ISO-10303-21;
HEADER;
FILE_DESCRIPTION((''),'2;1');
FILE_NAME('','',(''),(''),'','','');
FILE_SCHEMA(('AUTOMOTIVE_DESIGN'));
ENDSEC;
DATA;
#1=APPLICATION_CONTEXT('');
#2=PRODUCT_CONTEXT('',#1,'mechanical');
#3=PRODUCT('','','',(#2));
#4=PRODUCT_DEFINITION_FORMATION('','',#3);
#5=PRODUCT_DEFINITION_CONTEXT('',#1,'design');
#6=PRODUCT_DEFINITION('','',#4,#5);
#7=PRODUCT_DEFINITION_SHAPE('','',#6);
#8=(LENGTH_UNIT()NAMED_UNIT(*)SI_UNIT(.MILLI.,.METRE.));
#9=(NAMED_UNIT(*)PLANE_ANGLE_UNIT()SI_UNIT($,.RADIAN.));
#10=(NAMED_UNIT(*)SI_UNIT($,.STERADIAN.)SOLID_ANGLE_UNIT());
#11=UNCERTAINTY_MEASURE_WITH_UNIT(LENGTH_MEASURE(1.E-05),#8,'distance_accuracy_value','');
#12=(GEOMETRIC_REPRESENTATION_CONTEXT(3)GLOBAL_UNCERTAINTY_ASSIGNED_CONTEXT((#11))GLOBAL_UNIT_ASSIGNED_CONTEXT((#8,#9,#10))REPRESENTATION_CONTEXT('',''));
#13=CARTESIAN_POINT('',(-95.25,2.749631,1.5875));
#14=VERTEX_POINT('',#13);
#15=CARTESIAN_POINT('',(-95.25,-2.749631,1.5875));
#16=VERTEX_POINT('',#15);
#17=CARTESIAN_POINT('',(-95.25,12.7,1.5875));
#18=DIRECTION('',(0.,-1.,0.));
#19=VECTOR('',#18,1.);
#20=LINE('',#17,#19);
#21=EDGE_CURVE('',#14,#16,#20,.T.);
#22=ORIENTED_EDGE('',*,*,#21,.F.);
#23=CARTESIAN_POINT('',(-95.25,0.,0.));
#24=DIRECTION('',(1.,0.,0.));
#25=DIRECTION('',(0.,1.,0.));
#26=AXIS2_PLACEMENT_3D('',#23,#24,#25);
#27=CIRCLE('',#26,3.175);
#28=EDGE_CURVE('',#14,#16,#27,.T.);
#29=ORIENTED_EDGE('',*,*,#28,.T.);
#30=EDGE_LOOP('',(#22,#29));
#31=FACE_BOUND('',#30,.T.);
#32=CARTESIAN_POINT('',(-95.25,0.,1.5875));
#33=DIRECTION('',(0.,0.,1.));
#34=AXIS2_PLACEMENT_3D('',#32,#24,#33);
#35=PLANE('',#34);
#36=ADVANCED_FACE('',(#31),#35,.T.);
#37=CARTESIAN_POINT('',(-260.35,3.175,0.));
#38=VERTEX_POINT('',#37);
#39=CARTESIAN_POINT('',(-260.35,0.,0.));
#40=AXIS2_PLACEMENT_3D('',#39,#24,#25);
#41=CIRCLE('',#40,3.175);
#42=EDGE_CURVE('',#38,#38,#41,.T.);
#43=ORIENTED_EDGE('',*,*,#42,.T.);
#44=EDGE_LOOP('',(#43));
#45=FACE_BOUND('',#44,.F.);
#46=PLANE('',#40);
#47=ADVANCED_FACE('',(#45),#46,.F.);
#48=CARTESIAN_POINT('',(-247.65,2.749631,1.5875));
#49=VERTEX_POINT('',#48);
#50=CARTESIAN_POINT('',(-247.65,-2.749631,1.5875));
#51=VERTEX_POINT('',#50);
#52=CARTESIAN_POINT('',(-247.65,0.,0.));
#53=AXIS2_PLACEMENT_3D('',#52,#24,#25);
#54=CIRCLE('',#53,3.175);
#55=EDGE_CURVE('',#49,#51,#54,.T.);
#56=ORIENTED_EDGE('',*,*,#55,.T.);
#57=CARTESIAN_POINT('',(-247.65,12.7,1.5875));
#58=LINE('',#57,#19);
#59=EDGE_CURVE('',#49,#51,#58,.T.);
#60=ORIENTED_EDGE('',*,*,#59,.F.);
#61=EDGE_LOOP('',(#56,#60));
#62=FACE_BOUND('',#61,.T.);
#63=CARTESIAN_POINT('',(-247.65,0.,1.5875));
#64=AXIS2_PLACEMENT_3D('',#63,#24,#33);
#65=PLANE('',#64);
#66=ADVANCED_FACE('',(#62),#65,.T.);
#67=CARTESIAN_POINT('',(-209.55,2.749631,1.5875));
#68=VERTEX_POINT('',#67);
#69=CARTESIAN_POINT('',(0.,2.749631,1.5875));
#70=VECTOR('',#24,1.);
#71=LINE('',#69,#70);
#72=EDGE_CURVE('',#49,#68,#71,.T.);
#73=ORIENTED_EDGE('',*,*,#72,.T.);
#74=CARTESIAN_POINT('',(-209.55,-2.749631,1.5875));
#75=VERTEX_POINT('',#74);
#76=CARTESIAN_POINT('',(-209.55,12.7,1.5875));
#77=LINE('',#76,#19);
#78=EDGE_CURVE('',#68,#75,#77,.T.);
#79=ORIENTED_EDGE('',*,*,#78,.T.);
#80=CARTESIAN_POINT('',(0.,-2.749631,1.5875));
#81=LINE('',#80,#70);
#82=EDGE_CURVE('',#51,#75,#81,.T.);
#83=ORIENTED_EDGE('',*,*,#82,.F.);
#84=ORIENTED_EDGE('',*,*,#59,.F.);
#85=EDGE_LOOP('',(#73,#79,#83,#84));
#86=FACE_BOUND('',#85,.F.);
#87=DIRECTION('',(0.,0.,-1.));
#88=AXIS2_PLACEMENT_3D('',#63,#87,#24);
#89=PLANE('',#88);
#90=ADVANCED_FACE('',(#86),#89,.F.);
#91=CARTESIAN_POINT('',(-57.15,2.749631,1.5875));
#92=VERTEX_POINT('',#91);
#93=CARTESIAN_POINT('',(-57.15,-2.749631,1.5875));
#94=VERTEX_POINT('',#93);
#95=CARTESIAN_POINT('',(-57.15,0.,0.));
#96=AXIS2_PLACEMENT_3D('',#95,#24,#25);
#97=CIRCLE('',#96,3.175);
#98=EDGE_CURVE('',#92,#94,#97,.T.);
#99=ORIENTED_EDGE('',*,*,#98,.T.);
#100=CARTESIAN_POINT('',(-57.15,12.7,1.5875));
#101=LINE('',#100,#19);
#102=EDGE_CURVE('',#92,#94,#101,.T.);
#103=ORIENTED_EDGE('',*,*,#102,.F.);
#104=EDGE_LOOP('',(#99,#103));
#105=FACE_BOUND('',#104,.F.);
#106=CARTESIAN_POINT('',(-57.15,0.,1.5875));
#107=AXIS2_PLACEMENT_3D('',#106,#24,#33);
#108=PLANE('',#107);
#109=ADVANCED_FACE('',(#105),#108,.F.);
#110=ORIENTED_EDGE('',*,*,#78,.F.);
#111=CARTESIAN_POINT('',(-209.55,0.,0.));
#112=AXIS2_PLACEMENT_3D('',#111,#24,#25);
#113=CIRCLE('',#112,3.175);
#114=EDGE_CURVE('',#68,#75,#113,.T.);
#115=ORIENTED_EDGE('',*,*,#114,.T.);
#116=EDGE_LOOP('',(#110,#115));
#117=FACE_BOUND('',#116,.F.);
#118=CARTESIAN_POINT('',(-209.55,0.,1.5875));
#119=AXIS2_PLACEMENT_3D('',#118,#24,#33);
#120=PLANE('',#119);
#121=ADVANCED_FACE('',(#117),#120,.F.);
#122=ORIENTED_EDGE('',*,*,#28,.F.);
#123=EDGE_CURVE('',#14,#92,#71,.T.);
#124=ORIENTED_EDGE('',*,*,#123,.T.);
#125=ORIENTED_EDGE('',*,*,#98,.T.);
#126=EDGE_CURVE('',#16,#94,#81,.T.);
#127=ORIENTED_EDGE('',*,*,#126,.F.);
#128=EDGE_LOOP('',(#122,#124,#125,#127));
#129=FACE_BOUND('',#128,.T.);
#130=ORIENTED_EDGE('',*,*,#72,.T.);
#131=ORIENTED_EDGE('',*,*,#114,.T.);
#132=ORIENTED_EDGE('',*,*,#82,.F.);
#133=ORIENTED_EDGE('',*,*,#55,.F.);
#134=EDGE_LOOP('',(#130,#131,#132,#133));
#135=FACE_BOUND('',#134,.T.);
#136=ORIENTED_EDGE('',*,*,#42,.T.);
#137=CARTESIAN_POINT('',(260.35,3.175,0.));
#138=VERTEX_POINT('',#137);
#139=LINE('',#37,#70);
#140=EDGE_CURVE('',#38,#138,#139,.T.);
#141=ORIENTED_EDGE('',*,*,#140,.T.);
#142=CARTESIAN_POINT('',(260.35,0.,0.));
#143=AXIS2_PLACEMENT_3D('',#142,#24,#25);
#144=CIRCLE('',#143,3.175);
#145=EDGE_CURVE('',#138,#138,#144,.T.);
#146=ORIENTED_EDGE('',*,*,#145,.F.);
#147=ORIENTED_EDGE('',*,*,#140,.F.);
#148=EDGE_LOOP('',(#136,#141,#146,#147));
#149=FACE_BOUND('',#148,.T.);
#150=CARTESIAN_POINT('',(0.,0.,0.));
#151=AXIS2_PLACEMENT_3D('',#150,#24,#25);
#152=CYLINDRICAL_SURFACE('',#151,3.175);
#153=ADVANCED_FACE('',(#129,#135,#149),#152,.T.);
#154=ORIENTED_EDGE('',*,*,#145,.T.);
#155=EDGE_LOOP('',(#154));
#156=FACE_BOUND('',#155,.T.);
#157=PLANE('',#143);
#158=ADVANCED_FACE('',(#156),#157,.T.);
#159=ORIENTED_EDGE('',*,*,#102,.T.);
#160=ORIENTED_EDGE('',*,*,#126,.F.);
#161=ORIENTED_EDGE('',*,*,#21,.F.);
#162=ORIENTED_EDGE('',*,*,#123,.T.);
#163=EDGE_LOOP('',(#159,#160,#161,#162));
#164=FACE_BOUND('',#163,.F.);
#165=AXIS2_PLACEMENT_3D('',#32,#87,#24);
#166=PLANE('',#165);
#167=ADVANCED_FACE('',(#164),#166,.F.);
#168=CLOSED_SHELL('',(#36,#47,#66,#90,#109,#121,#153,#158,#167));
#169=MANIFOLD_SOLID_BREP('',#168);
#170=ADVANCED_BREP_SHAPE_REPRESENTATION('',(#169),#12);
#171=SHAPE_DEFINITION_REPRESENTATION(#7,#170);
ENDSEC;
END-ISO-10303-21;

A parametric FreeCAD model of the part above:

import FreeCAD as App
import Part
import Sketcher

V = App.Vector
Q = App.Units.Quantity


def add_polygon(sketch, points):
    """Adds a closed chain of lines whose ends are joined by coincident constraints."""
    first, n = sketch.GeometryCount, len(points)
    for a, b in zip(points, points[1:] + points[:1]):
        sketch.addGeometry(Part.LineSegment(App.Vector(*a, 0), App.Vector(*b, 0)), False)
    for i in range(n):
        sketch.addConstraint(Sketcher.Constraint("Coincident", first + i, 2, first + (i + 1) % n, 1))

doc = App.newDocument("Part")
params = doc.addObject("Spreadsheet::Sheet", "Params")
for row, (alias, value) in enumerate([
    ("sketch1_diameter", "0.25 in"),
    ("pad1_length", "20.5 in"),
    ("sketch2_width", "1.5 in"),
    ("sketch2_height", "0.2 in"),
    ("pocket1_length", "1 in"),
    ("sketch3_width", "1.5 in"),
    ("sketch3_height", "0.2 in"),
    ("pocket2_length", "1 in"),
], start=1):
    params.set(f"A{row}", alias)
    params.set(f"B{row}", "=" + value)
    params.setAlias(f"B{row}", alias)

body = doc.addObject("PartDesign::Body", "Body")

# Sketch on YZ plane
sketch1 = body.newObject("Sketcher::SketchObject", "Sketch")
sketch1.AttachmentSupport = (doc.getObject("YZ_Plane"), [""])
sketch1.MapMode = "FlatFace"
sketch1.addGeometry(Part.Circle(V(0, 0, 0), V(0, 0, 1), 3.175), False)
sketch1.addConstraint([
    Sketcher.Constraint("Coincident", 0, 3, -1, 1),
    Sketcher.Constraint("Diameter", 0, Q("0.25 in")),
])
sketch1.setExpression("Constraints[1]", "Params.sketch1_diameter")
pad1 = body.newObject("PartDesign::Pad", "Pad")
pad1.Profile = sketch1
pad1.setExpression("Length", "Params.pad1_length")
pad1.Midplane = True

# Sketch on XZ plane
sketch2 = body.newObject("Sketcher::SketchObject", "Sketch001")
sketch2.AttachmentSupport = (doc.getObject("XZ_Plane"), [""])
sketch2.MapMode = "FlatFace"
add_polygon(sketch2, [(-247.65, 6.6675), (-247.65, 1.5875), (-209.55, 1.5875), (-209.55, 6.6675)])  # lines 0-3
sketch2.addConstraint([
    Sketcher.Constraint("Vertical", 0),
    Sketcher.Constraint("Horizontal", 1),
    Sketcher.Constraint("Vertical", 2),
    Sketcher.Constraint("Horizontal", 3),
    Sketcher.Constraint("DistanceX", 1, 1, 1, 2, Q("1.5 in")),
    Sketcher.Constraint("DistanceY", 0, 2, 0, 1, Q("0.2 in")),
    Sketcher.Constraint("DistanceX", 0, 2, -1, 1, Q("9.75 in")),
    Sketcher.Constraint("DistanceY", -1, 1, 0, 2, Q("0.0625 in")),
])
sketch2.setExpression("Constraints[8]", "Params.sketch2_width")
sketch2.setExpression("Constraints[9]", "Params.sketch2_height")
pocket1 = body.newObject("PartDesign::Pocket", "Pocket")
pocket1.Profile = sketch2
pocket1.setExpression("Length", "Params.pocket1_length")
pocket1.Midplane = True

# Sketch on XZ plane
sketch3 = body.newObject("Sketcher::SketchObject", "Sketch002")
sketch3.AttachmentSupport = (doc.getObject("XZ_Plane"), [""])
sketch3.MapMode = "FlatFace"
add_polygon(sketch3, [(-95.25, 6.6675), (-95.25, 1.5875), (-57.15, 1.5875), (-57.15, 6.6675)])  # lines 0-3
sketch3.addConstraint([
    Sketcher.Constraint("Vertical", 0),
    Sketcher.Constraint("Horizontal", 1),
    Sketcher.Constraint("Vertical", 2),
    Sketcher.Constraint("Horizontal", 3),
    Sketcher.Constraint("DistanceX", 1, 1, 1, 2, Q("1.5 in")),
    Sketcher.Constraint("DistanceY", 0, 2, 0, 1, Q("0.2 in")),
    Sketcher.Constraint("DistanceX", 0, 2, -1, 1, Q("3.75 in")),
    Sketcher.Constraint("DistanceY", -1, 1, 0, 2, Q("0.0625 in")),
])
sketch3.setExpression("Constraints[8]", "Params.sketch3_width")
sketch3.setExpression("Constraints[9]", "Params.sketch3_height")
pocket2 = body.newObject("PartDesign::Pocket", "Pocket001")
pocket2.Profile = sketch3
pocket2.setExpression("Length", "Params.pocket2_length")
pocket2.Midplane = True

doc.recompute()
